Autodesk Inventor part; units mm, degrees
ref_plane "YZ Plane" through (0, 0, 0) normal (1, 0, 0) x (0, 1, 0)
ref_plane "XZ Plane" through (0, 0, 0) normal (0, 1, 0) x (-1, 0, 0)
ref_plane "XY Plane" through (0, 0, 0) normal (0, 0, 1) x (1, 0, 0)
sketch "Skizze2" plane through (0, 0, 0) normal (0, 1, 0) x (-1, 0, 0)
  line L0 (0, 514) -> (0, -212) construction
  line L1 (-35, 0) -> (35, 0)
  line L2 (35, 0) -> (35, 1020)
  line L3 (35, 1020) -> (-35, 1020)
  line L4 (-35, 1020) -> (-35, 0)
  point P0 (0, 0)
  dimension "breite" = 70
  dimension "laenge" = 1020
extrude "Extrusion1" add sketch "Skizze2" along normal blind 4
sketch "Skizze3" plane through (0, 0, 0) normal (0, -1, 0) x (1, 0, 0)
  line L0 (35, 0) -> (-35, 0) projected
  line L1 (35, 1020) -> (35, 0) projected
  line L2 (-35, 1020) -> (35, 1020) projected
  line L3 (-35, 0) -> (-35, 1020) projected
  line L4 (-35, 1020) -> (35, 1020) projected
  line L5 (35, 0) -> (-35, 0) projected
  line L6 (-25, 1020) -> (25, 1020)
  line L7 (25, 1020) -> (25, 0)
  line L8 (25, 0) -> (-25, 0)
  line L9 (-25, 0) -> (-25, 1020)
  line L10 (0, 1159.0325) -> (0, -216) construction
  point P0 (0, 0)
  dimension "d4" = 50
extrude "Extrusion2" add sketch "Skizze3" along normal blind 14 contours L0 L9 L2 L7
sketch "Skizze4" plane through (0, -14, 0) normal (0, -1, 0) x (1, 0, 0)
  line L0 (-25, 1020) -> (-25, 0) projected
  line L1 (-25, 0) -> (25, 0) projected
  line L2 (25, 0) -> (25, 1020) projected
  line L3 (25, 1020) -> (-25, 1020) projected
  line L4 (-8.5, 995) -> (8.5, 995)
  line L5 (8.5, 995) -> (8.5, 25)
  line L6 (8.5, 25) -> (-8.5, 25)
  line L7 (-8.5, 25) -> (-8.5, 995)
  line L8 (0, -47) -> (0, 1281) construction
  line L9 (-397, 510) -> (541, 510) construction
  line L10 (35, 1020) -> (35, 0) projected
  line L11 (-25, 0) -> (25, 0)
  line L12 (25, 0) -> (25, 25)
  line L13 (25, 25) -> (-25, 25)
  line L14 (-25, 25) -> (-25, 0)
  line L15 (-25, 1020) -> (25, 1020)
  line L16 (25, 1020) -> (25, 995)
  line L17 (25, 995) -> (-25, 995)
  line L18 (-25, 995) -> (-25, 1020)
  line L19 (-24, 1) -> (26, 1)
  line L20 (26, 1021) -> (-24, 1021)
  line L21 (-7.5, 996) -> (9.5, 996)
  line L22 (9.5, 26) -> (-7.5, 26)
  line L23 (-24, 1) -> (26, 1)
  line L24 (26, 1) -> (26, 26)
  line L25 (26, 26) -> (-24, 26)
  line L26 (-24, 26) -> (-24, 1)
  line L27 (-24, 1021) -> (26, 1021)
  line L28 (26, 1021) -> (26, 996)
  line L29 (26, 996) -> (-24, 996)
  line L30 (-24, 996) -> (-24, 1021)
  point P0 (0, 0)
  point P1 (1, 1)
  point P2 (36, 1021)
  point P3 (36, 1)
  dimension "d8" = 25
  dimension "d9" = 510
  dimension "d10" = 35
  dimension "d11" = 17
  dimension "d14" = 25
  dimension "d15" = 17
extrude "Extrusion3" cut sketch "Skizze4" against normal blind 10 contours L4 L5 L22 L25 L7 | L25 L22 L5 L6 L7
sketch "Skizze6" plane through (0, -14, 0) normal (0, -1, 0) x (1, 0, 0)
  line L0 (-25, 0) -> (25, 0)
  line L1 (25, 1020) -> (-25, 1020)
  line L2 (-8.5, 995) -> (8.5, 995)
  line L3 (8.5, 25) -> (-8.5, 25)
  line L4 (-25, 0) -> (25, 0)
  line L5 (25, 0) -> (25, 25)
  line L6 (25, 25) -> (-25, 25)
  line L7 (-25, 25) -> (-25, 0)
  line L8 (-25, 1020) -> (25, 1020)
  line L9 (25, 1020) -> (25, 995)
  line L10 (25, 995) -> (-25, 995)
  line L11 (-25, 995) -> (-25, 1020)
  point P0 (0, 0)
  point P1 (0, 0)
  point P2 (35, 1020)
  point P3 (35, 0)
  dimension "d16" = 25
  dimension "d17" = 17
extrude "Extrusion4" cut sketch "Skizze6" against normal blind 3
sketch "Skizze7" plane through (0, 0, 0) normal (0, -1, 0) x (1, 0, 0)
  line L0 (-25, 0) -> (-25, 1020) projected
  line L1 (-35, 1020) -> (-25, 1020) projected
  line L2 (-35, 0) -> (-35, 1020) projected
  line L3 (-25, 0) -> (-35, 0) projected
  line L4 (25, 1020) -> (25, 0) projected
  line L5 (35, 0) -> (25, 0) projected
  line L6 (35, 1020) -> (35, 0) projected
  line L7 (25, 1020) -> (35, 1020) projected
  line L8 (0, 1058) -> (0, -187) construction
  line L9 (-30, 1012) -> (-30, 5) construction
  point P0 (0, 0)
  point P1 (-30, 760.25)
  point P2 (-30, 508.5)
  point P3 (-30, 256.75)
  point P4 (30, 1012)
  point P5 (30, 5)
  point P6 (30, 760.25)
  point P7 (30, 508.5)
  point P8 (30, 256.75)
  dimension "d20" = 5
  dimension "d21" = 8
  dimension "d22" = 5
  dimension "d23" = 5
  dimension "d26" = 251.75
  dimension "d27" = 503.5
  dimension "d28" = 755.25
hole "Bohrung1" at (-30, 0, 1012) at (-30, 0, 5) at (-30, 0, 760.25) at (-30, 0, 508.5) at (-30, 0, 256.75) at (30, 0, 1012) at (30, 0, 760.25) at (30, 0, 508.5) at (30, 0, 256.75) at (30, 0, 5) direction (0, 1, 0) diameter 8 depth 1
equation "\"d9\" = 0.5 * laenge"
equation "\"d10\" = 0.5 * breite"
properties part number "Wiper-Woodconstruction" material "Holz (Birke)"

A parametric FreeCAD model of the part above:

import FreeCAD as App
import Part
import Sketcher
Q = App.Units.Quantity

doc = App.newDocument("Part")
body = doc.addObject("PartDesign::Body", "Body")

# Sketch on XZ plane
sketch1 = body.newObject("Sketcher::SketchObject", "Sketch")
sketch1.AttachmentSupport = (doc.getObject("XZ_Plane"), [""])
sketch1.MapMode = "FlatFace"
sketch1.addGeometry([
    Part.LineSegment(App.Vector(35, 1020, 0), App.Vector(35, 0, 0)),
    Part.LineSegment(App.Vector(35, 0, 0), App.Vector(-35, 0, 0)),
    Part.LineSegment(App.Vector(-35, 0, 0), App.Vector(-35, 1020, 0)),
    Part.LineSegment(App.Vector(-35, 1020, 0), App.Vector(35, 1020, 0)),
], False)
sketch1.addConstraint([
    Sketcher.Constraint("Coincident", 0, 2, 1, 1),
    Sketcher.Constraint("Coincident", 1, 2, 2, 1),
    Sketcher.Constraint("Coincident", 2, 2, 3, 1),
    Sketcher.Constraint("Coincident", 3, 2, 0, 1),
    Sketcher.Constraint("Vertical", 0),
    Sketcher.Constraint("Horizontal", 1),
    Sketcher.Constraint("Vertical", 2),
    Sketcher.Constraint("Horizontal", 3),
    Sketcher.Constraint("Symmetric", 0, 2, 1, 2, -1, 1),
    Sketcher.Constraint("DistanceX", 1, 2, 1, 1, Q("70 mm")),
    Sketcher.Constraint("DistanceY", 0, 2, 0, 1, Q("1020 mm")),
])
pad1 = body.newObject("PartDesign::Pad", "Pad")
pad1.Profile = sketch1
pad1.Length = 4
pad1.Reversed = True

# Sketch on XZ plane
sketch2 = body.newObject("Sketcher::SketchObject", "Sketch001")
sketch2.AttachmentSupport = (doc.getObject("XZ_Plane"), [""])
sketch2.MapMode = "FlatFace"
sketch2.addGeometry([
    Part.LineSegment(App.Vector(-25, 0, 0), App.Vector(25, 0, 0)),
    Part.LineSegment(App.Vector(25, 0, 0), App.Vector(25, 1020, 0)),
    Part.LineSegment(App.Vector(25, 1020, 0), App.Vector(-25, 1020, 0)),
    Part.LineSegment(App.Vector(-25, 1020, 0), App.Vector(-25, 0, 0)),
], False)
sketch2.addConstraint([
    Sketcher.Constraint("Coincident", 0, 2, 1, 1),
    Sketcher.Constraint("Coincident", 1, 2, 2, 1),
    Sketcher.Constraint("Coincident", 2, 2, 3, 1),
    Sketcher.Constraint("Coincident", 3, 2, 0, 1),
    Sketcher.Constraint("Horizontal", 0),
    Sketcher.Constraint("Vertical", 1),
    Sketcher.Constraint("Horizontal", 2),
    Sketcher.Constraint("Vertical", 3),
    Sketcher.Constraint("Symmetric", 0, 2, 3, 2, -1, 1),
    Sketcher.Constraint("DistanceX", 0, 1, 0, 2, Q("50 mm")),
    Sketcher.Constraint("DistanceY", 1, 1, 1, 2, Q("1020 mm")),
])
pad2 = body.newObject("PartDesign::Pad", "Pad001")
pad2.Profile = sketch2
pad2.Length = 14

# Sketch on XZ plane
sketch3 = body.newObject("Sketcher::SketchObject", "Sketch002")
sketch3.AttachmentSupport = (doc.getObject("XZ_Plane"), [""])
sketch3.MapMode = "FlatFace"
sketch3.AttachmentOffset = App.Placement(App.Vector(0, 0, 14), App.Rotation())
sketch3.addGeometry([
    Part.LineSegment(App.Vector(8, 995, 0), App.Vector(-8, 995, 0)),
    Part.LineSegment(App.Vector(-8, 995, 0), App.Vector(-8, 25, 0)),
    Part.LineSegment(App.Vector(-8, 25, 0), App.Vector(8, 25, 0)),
    Part.LineSegment(App.Vector(8, 25, 0), App.Vector(8, 995, 0)),
], False)
sketch3.addConstraint([
    Sketcher.Constraint("Coincident", 0, 2, 1, 1),
    Sketcher.Constraint("Coincident", 1, 2, 2, 1),
    Sketcher.Constraint("Coincident", 2, 2, 3, 1),
    Sketcher.Constraint("Coincident", 3, 2, 0, 1),
    Sketcher.Constraint("Horizontal", 0),
    Sketcher.Constraint("Vertical", 1),
    Sketcher.Constraint("Horizontal", 2),
    Sketcher.Constraint("Vertical", 3),
    Sketcher.Constraint("DistanceX", 0, 2, 0, 1, Q("17 mm")),
    Sketcher.Constraint("DistanceY", -1, 1, 1, 2, Q("25 mm")),
    Sketcher.Constraint("DistanceY", 1, 2, 1, 1, Q("970 mm")),
    Sketcher.Constraint("DistanceX", 0, 2, -1, 1, Q("8.5 mm")),
])
pocket1 = body.newObject("PartDesign::Pocket", "Pocket")
pocket1.Profile = sketch3
pocket1.Length = 10

# Sketch on XZ plane
sketch4 = body.newObject("Sketcher::SketchObject", "Sketch003")
sketch4.AttachmentSupport = (doc.getObject("XZ_Plane"), [""])
sketch4.MapMode = "FlatFace"
sketch4.AttachmentOffset = App.Placement(App.Vector(0, 0, 14), App.Rotation())
sketch4.addGeometry([
    Part.LineSegment(App.Vector(-25, 25, 0), App.Vector(-25, 0, 0)),  # 0
    Part.LineSegment(App.Vector(-25, 0, 0), App.Vector(25, 0, 0)),  # 1
    Part.LineSegment(App.Vector(25, 0, 0), App.Vector(25, 25, 0)),  # 2
    Part.LineSegment(App.Vector(25, 25, 0), App.Vector(-25, 25, 0)),  # 3
    Part.LineSegment(App.Vector(25, 995, 0), App.Vector(25, 1020, 0)),  # 4
    Part.LineSegment(App.Vector(25, 1020, 0), App.Vector(-25, 1020, 0)),  # 5
    Part.LineSegment(App.Vector(-25, 1020, 0), App.Vector(-25, 995, 0)),  # 6
    Part.LineSegment(App.Vector(-25, 995, 0), App.Vector(25, 995, 0)),  # 7
], False)
sketch4.addConstraint([
    Sketcher.Constraint("Coincident", 0, 2, 1, 1),
    Sketcher.Constraint("Coincident", 1, 2, 2, 1),
    Sketcher.Constraint("Coincident", 2, 2, 3, 1),
    Sketcher.Constraint("Coincident", 3, 2, 0, 1),
    Sketcher.Constraint("Coincident", 4, 2, 5, 1),
    Sketcher.Constraint("Coincident", 5, 2, 6, 1),
    Sketcher.Constraint("Coincident", 6, 2, 7, 1),
    Sketcher.Constraint("Coincident", 7, 2, 4, 1),
    Sketcher.Constraint("Vertical", 0),
    Sketcher.Constraint("Horizontal", 1),
    Sketcher.Constraint("Vertical", 2),
    Sketcher.Constraint("Horizontal", 3),
    Sketcher.Constraint("Vertical", 4),
    Sketcher.Constraint("Horizontal", 5),
    Sketcher.Constraint("Vertical", 6),
    Sketcher.Constraint("Horizontal", 7),
    Sketcher.Constraint("Symmetric", 0, 2, 1, 2, -1, 1),
    Sketcher.Constraint("Vertical", 2, 2, 4, 2),
    Sketcher.Constraint("Vertical", 3, 2, 5, 2),
    Sketcher.Constraint("Equal", 2, 4),
    Sketcher.Constraint("DistanceY", 0, 2, 0, 1, Q("25 mm")),
    Sketcher.Constraint("DistanceX", 0, 2, -1, 1, Q("25 mm")),
    Sketcher.Constraint("DistanceY", -1, 1, 4, 2, Q("1020 mm")),
])
pocket2 = body.newObject("PartDesign::Pocket", "Pocket001")
pocket2.Profile = sketch4
pocket2.Length = 3

# Sketch on XZ plane
sketch5 = body.newObject("Sketcher::SketchObject", "Sketch004")
sketch5.AttachmentSupport = (doc.getObject("XZ_Plane"), [""])
sketch5.MapMode = "FlatFace"
sketch5.addGeometry([
    Part.Circle(App.Vector(-30, 1012, 0), App.Vector(0, 0, 1), 4),  # 0
    Part.Circle(App.Vector(-30, 5, 0), App.Vector(0, 0, 1), 4),  # 1
    Part.Circle(App.Vector(-30, 760.2, 0), App.Vector(0, 0, 1), 4),  # 2
    Part.Circle(App.Vector(-30, 508.5, 0), App.Vector(0, 0, 1), 4),  # 3
    Part.Circle(App.Vector(-30, 256.8, 0), App.Vector(0, 0, 1), 4),  # 4
    Part.Circle(App.Vector(30, 1012, 0), App.Vector(0, 0, 1), 4),  # 5
    Part.Circle(App.Vector(30, 760.2, 0), App.Vector(0, 0, 1), 4),  # 6
    Part.Circle(App.Vector(30, 508.5, 0), App.Vector(0, 0, 1), 4),  # 7
    Part.Circle(App.Vector(30, 256.8, 0), App.Vector(0, 0, 1), 4),  # 8
    Part.Circle(App.Vector(30, 5, 0), App.Vector(0, 0, 1), 4),  # 9
], False)
sketch5.addConstraint([
    Sketcher.Constraint("Equal", 0, 1),
    Sketcher.Constraint("Equal", 1, 2),
    Sketcher.Constraint("Equal", 2, 3),
    Sketcher.Constraint("Equal", 3, 4),
    Sketcher.Constraint("Equal", 4, 5),
    Sketcher.Constraint("Equal", 5, 6),
    Sketcher.Constraint("Equal", 6, 7),
    Sketcher.Constraint("Equal", 7, 8),
    Sketcher.Constraint("Equal", 8, 9),
    Sketcher.Constraint("Symmetric", 0, 3, 5, 3, -2),
    Sketcher.Constraint("Symmetric", 2, 3, 6, 3, -2),
    Sketcher.Constraint("Symmetric", 3, 3, 7, 3, -2),
    Sketcher.Constraint("Symmetric", 4, 3, 8, 3, -2),
    Sketcher.Constraint("Symmetric", 1, 3, 9, 3, -2),
    Sketcher.Constraint("Vertical", 0, 3, 1, 3),
    Sketcher.Constraint("Vertical", 1, 3, 2, 3),
    Sketcher.Constraint("Vertical", 2, 3, 3, 3),
    Sketcher.Constraint("Vertical", 3, 3, 4, 3),
    Sketcher.Constraint("Diameter", 0, Q("8 mm")),
    Sketcher.Constraint("DistanceX", 0, 3, -1, 1, Q("30 mm")),
    Sketcher.Constraint("DistanceY", -1, 1, 0, 3, Q("1012 mm")),
    Sketcher.Constraint("DistanceY", -1, 1, 1, 3, Q("5 mm")),
    Sketcher.Constraint("DistanceY", -1, 1, 3, 3, Q("508.5 mm")),
    Sketcher.Constraint("DistanceY", 4, 3, 2, 3, Q("503.5 mm")),
    Sketcher.Constraint("DistanceY", -1, 1, 2, 3, Q("760.25 mm")),
])
doc.recompute()
hole = body.newObject("PartDesign::Hole", "Hole")
hole.Profile = sketch5
hole.ThreadType = "None"
hole.Diameter = 8
hole.DepthType = "Dimension"
hole.Depth = 1
hole.DrillPoint = "Flat"

doc.recompute()
